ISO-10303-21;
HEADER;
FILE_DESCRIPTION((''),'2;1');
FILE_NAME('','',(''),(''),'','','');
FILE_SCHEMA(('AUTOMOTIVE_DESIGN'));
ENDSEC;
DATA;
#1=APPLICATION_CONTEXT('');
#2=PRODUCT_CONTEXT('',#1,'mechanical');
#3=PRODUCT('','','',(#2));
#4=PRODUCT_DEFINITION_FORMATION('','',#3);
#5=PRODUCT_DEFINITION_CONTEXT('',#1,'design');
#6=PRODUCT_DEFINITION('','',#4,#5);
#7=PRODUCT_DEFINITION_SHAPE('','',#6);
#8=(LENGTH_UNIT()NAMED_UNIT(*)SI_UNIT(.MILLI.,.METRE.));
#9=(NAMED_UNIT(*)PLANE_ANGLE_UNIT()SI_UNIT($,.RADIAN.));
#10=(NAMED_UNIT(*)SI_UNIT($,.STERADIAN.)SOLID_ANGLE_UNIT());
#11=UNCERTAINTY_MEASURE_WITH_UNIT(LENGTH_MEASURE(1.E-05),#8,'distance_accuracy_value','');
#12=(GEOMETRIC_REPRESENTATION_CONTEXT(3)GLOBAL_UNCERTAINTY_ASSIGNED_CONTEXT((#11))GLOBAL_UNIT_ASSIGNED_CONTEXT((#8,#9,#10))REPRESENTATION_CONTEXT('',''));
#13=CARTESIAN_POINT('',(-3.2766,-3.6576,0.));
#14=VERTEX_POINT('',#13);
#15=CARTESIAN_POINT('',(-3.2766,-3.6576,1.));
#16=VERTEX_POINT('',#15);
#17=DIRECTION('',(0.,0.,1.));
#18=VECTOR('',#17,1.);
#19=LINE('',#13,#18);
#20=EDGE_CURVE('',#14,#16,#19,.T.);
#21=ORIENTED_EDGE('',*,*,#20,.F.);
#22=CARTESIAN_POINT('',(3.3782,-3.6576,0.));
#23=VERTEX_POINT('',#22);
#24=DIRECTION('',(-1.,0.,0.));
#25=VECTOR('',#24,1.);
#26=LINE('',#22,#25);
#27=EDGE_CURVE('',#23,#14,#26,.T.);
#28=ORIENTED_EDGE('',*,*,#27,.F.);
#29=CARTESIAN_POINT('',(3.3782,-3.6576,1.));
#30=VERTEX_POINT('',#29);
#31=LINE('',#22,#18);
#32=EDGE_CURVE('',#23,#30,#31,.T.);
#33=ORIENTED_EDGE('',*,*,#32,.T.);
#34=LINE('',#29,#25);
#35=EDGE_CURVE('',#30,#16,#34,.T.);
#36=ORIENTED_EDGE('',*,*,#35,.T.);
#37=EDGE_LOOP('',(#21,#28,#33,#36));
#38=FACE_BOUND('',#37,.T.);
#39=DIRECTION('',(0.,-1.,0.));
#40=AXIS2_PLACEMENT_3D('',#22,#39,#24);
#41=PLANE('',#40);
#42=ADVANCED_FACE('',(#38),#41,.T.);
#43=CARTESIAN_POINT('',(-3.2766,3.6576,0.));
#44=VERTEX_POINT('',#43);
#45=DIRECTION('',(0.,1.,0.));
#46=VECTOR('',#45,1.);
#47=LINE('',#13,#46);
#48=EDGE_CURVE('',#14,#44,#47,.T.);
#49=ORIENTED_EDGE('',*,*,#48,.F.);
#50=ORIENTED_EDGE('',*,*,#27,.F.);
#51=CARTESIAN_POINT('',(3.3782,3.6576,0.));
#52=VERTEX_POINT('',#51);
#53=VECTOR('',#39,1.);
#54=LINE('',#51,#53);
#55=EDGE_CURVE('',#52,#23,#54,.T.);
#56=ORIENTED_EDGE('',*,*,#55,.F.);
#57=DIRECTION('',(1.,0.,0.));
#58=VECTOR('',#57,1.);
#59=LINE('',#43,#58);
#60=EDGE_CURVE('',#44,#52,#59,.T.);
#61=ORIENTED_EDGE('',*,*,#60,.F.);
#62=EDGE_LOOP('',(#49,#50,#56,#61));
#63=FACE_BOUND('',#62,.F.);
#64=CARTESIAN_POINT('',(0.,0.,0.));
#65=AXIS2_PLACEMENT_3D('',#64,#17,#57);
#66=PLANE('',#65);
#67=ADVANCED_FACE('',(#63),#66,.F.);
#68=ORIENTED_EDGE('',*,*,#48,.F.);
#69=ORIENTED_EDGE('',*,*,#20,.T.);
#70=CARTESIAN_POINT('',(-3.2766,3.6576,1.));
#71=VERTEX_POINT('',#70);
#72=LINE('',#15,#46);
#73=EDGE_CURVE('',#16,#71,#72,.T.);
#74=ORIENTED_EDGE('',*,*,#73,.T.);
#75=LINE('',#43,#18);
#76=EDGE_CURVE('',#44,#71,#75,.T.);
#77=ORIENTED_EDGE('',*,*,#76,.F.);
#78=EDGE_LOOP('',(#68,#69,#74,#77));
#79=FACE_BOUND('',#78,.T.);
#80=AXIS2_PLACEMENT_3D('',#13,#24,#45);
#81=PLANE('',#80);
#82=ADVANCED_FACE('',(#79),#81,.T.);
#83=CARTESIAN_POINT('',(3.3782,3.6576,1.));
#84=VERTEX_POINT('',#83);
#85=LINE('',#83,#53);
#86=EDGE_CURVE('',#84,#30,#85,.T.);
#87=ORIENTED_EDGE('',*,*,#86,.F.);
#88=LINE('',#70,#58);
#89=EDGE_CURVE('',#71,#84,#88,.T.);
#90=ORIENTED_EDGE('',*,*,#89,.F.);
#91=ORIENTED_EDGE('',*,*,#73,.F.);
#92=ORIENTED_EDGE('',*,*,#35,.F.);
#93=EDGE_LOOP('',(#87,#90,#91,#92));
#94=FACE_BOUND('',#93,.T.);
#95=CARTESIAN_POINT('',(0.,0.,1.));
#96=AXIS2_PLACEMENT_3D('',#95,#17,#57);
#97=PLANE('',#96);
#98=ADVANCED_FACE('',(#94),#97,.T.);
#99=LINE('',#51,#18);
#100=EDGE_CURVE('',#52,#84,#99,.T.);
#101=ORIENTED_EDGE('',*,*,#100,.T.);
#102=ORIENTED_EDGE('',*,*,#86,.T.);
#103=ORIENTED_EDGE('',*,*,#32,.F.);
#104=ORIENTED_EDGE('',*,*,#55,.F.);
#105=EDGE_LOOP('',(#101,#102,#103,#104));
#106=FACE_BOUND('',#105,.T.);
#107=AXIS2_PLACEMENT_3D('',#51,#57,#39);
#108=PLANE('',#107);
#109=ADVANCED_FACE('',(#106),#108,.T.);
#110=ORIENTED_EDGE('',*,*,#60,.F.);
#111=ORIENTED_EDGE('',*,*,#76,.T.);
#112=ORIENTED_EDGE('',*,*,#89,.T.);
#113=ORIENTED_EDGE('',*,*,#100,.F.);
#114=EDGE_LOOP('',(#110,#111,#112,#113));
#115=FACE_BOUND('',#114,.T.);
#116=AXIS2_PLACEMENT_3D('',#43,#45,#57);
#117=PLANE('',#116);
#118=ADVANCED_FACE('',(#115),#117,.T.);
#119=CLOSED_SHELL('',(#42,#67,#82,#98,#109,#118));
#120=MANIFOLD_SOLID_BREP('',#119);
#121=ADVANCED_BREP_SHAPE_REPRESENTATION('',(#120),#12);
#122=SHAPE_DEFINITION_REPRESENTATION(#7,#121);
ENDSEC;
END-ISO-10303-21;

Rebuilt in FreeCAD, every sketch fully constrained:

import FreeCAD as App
import Part
import Sketcher
Q = App.Units.Quantity

doc = App.newDocument("Part")
params = doc.addObject("Spreadsheet::Sheet", "Params")
for row, (alias, value) in enumerate([
    ("sketch1_width", "0.262 in"),
    ("sketch1_height", "0.288 in"),
    ("pad1_length", "1 mm"),
], start=1):
    params.set(f"A{row}", alias)
    params.set(f"B{row}", "=" + value)
    params.setAlias(f"B{row}", alias)

body = doc.addObject("PartDesign::Body", "Body")

sketch1 = body.newObject("Sketcher::SketchObject", "Sketch")
sketch1.AttachmentSupport = (doc.getObject("XY_Plane"), [""])
sketch1.MapMode = "FlatFace"
sketch1.addGeometry(Part.LineSegment(App.Vector(3.3782, 3.6576, 0), App.Vector(-3.2766, 3.6576, 0)), False)
sketch1.addGeometry(Part.LineSegment(App.Vector(-3.2766, 3.6576, 0), App.Vector(-3.2766, -3.6576, 0)), False)
sketch1.addGeometry(Part.LineSegment(App.Vector(-3.2766, -3.6576, 0), App.Vector(3.3782, -3.6576, 0)), False)
sketch1.addGeometry(Part.LineSegment(App.Vector(3.3782, -3.6576, 0), App.Vector(3.3782, 3.6576, 0)), False)
sketch1.addConstraint(Sketcher.Constraint("Coincident", 0, 2, 1, 1))
sketch1.addConstraint(Sketcher.Constraint("Coincident", 1, 2, 2, 1))
sketch1.addConstraint(Sketcher.Constraint("Coincident", 2, 2, 3, 1))
sketch1.addConstraint(Sketcher.Constraint("Coincident", 3, 2, 0, 1))
sketch1.addConstraint(Sketcher.Constraint("Horizontal", 0))
sketch1.addConstraint(Sketcher.Constraint("Vertical", 1))
sketch1.addConstraint(Sketcher.Constraint("Horizontal", 2))
sketch1.addConstraint(Sketcher.Constraint("Vertical", 3))
sketch1.addConstraint(Sketcher.Constraint("DistanceX", 0, 2, 0, 1, Q("0.262 in")))
sketch1.addConstraint(Sketcher.Constraint("DistanceY", 1, 2, 1, 1, Q("0.288 in")))
sketch1.addConstraint(Sketcher.Constraint("DistanceX", 0, 2, -1, 1, Q("0.129 in")))
sketch1.addConstraint(Sketcher.Constraint("DistanceY", -1, 1, 0, 2, Q("0.144 in")))
sketch1.setExpression("Constraints[8]", "Params.sketch1_width")
sketch1.setExpression("Constraints[9]", "Params.sketch1_height")
pad1 = body.newObject("PartDesign::Pad", "Pad")
pad1.Profile = sketch1
pad1.setExpression("Length", "Params.pad1_length")

doc.recompute()
